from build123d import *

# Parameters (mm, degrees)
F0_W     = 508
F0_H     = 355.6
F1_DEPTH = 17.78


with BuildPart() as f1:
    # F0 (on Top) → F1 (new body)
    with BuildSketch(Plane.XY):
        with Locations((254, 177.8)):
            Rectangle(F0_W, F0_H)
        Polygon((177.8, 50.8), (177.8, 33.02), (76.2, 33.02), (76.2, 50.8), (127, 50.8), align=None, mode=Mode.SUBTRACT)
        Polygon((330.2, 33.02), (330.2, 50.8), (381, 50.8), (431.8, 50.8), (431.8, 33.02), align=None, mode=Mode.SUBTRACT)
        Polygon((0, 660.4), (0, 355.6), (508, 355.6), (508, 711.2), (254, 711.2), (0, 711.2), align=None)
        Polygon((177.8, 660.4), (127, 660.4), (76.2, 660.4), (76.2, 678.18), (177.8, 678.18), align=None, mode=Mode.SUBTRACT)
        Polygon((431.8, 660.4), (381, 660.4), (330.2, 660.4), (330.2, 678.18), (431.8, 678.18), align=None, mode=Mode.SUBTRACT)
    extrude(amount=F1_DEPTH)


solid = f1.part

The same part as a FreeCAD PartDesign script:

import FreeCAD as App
import Part
import Sketcher

V = App.Vector
Q = App.Units.Quantity

doc = App.newDocument("Part")
body = doc.addObject("PartDesign::Body", "Body")

# Sketch on XY plane
sketch1 = body.newObject("Sketcher::SketchObject", "Sketch")
sketch1.AttachmentSupport = (doc.getObject("XY_Plane"), [""])
sketch1.MapMode = "FlatFace"
sketch1.addGeometry(Part.LineSegment(V(0, 0, 0), V(508, 0, 0)), False)
sketch1.addGeometry(Part.LineSegment(V(508, 0, 0), V(508, 711, 0)), False)
sketch1.addGeometry(Part.LineSegment(V(508, 711, 0), V(0, 711, 0)), False)
sketch1.addGeometry(Part.LineSegment(V(0, 711, 0), V(0, 0, 0)), False)
sketch1.addGeometry(Part.LineSegment(V(76, 51, 0), V(178, 51, 0)), False)
sketch1.addGeometry(Part.LineSegment(V(178, 51, 0), V(178, 33, 0)), False)
sketch1.addGeometry(Part.LineSegment(V(178, 33, 0), V(76, 33, 0)), False)
sketch1.addGeometry(Part.LineSegment(V(76, 33, 0), V(76, 51, 0)), False)
sketch1.addGeometry(Part.LineSegment(V(432, 33, 0), V(330, 33, 0)), False)
sketch1.addGeometry(Part.LineSegment(V(330, 33, 0), V(330, 51, 0)), False)
sketch1.addGeometry(Part.LineSegment(V(330, 51, 0), V(432, 51, 0)), False)
sketch1.addGeometry(Part.LineSegment(V(432, 51, 0), V(432, 33, 0)), False)
sketch1.addGeometry(Part.LineSegment(V(178, 678, 0), V(178, 660, 0)), False)
sketch1.addGeometry(Part.LineSegment(V(178, 660, 0), V(76, 660, 0)), False)
sketch1.addGeometry(Part.LineSegment(V(76, 660, 0), V(76, 678, 0)), False)
sketch1.addGeometry(Part.LineSegment(V(76, 678, 0), V(178, 678, 0)), False)
sketch1.addGeometry(Part.LineSegment(V(432, 678, 0), V(432, 660, 0)), False)
sketch1.addGeometry(Part.LineSegment(V(432, 660, 0), V(330, 660, 0)), False)
sketch1.addGeometry(Part.LineSegment(V(330, 660, 0), V(330, 678, 0)), False)
sketch1.addGeometry(Part.LineSegment(V(330, 678, 0), V(432, 678, 0)), False)
sketch1.addConstraint(Sketcher.Constraint("Coincident", 0, 2, 1, 1))
sketch1.addConstraint(Sketcher.Constraint("Coincident", 1, 2, 2, 1))
sketch1.addConstraint(Sketcher.Constraint("Coincident", 2, 2, 3, 1))
sketch1.addConstraint(Sketcher.Constraint("Coincident", 3, 2, 0, 1))
sketch1.addConstraint(Sketcher.Constraint("Coincident", 4, 2, 5, 1))
sketch1.addConstraint(Sketcher.Constraint("Coincident", 5, 2, 6, 1))
sketch1.addConstraint(Sketcher.Constraint("Coincident", 6, 2, 7, 1))
sketch1.addConstraint(Sketcher.Constraint("Coincident", 7, 2, 4, 1))
sketch1.addConstraint(Sketcher.Constraint("Coincident", 8, 2, 9, 1))
sketch1.addConstraint(Sketcher.Constraint("Coincident", 9, 2, 10, 1))
sketch1.addConstraint(Sketcher.Constraint("Coincident", 10, 2, 11, 1))
sketch1.addConstraint(Sketcher.Constraint("Coincident", 11, 2, 8, 1))
sketch1.addConstraint(Sketcher.Constraint("Coincident", 12, 2, 13, 1))
sketch1.addConstraint(Sketcher.Constraint("Coincident", 13, 2, 14, 1))
sketch1.addConstraint(Sketcher.Constraint("Coincident", 14, 2, 15, 1))
sketch1.addConstraint(Sketcher.Constraint("Coincident", 15, 2, 12, 1))
sketch1.addConstraint(Sketcher.Constraint("Coincident", 16, 2, 17, 1))
sketch1.addConstraint(Sketcher.Constraint("Coincident", 17, 2, 18, 1))
sketch1.addConstraint(Sketcher.Constraint("Coincident", 18, 2, 19, 1))
sketch1.addConstraint(Sketcher.Constraint("Coincident", 19, 2, 16, 1))
sketch1.addConstraint(Sketcher.Constraint("Horizontal", 0))
sketch1.addConstraint(Sketcher.Constraint("Vertical", 1))
sketch1.addConstraint(Sketcher.Constraint("Horizontal", 2))
sketch1.addConstraint(Sketcher.Constraint("Vertical", 3))
sketch1.addConstraint(Sketcher.Constraint("Horizontal", 4))
sketch1.addConstraint(Sketcher.Constraint("Vertical", 5))
sketch1.addConstraint(Sketcher.Constraint("Horizontal", 6))
sketch1.addConstraint(Sketcher.Constraint("Vertical", 7))
sketch1.addConstraint(Sketcher.Constraint("Horizontal", 8))
sketch1.addConstraint(Sketcher.Constraint("Vertical", 9))
sketch1.addConstraint(Sketcher.Constraint("Horizontal", 10))
sketch1.addConstraint(Sketcher.Constraint("Vertical", 11))
sketch1.addConstraint(Sketcher.Constraint("Vertical", 12))
sketch1.addConstraint(Sketcher.Constraint("Horizontal", 13))
sketch1.addConstraint(Sketcher.Constraint("Vertical", 14))
sketch1.addConstraint(Sketcher.Constraint("Horizontal", 15))
sketch1.addConstraint(Sketcher.Constraint("Vertical", 16))
sketch1.addConstraint(Sketcher.Constraint("Horizontal", 17))
sketch1.addConstraint(Sketcher.Constraint("Vertical", 18))
sketch1.addConstraint(Sketcher.Constraint("Horizontal", 19))
sketch1.addConstraint(Sketcher.Constraint("Coincident", 3, 2, -1, 1))
sketch1.addConstraint(Sketcher.Constraint("Horizontal", 6, 2, 8, 2))
sketch1.addConstraint(Sketcher.Constraint("Horizontal", 7, 2, 9, 2))
sketch1.addConstraint(Sketcher.Constraint("Horizontal", 13, 2, 16, 2))
sketch1.addConstraint(Sketcher.Constraint("Horizontal", 15, 2, 18, 2))
sketch1.addConstraint(Sketcher.Constraint("Vertical", 5, 2, 12, 2))
sketch1.addConstraint(Sketcher.Constraint("Vertical", 7, 2, 13, 2))
sketch1.addConstraint(Sketcher.Constraint("Vertical", 11, 2, 16, 2))
sketch1.addConstraint(Sketcher.Constraint("Vertical", 9, 2, 17, 2))
sketch1.addConstraint(Sketcher.Constraint("Equal", 6, 8))
sketch1.addConstraint(Sketcher.Constraint("Equal", 11, 12))
sketch1.addConstraint(Sketcher.Constraint("DistanceX", 0, 1, 0, 2, Q("20 in")))
sketch1.addConstraint(Sketcher.Constraint("DistanceX", 4, 1, 4, 2, Q("4 in")))
sketch1.addConstraint(Sketcher.Constraint("DistanceY", 1, 1, 1, 2, Q("28 in")))
sketch1.addConstraint(Sketcher.Constraint("DistanceY", 5, 2, 5, 1, Q("0.7 in")))
sketch1.addConstraint(Sketcher.Constraint("DistanceX", -1, 1, 4, 2, Q("7 in")))
sketch1.addConstraint(Sketcher.Constraint("DistanceY", -1, 1, 4, 2, Q("2 in")))
sketch1.addConstraint(Sketcher.Constraint("DistanceX", -1, 1, 8, 2, Q("13 in")))
sketch1.addConstraint(Sketcher.Constraint("DistanceY", -1, 1, 12, 2, Q("26 in")))
pad1 = body.newObject("PartDesign::Pad", "Pad")
pad1.Profile = sketch1
pad1.Length = Q("0.7 in")

doc.recompute()
